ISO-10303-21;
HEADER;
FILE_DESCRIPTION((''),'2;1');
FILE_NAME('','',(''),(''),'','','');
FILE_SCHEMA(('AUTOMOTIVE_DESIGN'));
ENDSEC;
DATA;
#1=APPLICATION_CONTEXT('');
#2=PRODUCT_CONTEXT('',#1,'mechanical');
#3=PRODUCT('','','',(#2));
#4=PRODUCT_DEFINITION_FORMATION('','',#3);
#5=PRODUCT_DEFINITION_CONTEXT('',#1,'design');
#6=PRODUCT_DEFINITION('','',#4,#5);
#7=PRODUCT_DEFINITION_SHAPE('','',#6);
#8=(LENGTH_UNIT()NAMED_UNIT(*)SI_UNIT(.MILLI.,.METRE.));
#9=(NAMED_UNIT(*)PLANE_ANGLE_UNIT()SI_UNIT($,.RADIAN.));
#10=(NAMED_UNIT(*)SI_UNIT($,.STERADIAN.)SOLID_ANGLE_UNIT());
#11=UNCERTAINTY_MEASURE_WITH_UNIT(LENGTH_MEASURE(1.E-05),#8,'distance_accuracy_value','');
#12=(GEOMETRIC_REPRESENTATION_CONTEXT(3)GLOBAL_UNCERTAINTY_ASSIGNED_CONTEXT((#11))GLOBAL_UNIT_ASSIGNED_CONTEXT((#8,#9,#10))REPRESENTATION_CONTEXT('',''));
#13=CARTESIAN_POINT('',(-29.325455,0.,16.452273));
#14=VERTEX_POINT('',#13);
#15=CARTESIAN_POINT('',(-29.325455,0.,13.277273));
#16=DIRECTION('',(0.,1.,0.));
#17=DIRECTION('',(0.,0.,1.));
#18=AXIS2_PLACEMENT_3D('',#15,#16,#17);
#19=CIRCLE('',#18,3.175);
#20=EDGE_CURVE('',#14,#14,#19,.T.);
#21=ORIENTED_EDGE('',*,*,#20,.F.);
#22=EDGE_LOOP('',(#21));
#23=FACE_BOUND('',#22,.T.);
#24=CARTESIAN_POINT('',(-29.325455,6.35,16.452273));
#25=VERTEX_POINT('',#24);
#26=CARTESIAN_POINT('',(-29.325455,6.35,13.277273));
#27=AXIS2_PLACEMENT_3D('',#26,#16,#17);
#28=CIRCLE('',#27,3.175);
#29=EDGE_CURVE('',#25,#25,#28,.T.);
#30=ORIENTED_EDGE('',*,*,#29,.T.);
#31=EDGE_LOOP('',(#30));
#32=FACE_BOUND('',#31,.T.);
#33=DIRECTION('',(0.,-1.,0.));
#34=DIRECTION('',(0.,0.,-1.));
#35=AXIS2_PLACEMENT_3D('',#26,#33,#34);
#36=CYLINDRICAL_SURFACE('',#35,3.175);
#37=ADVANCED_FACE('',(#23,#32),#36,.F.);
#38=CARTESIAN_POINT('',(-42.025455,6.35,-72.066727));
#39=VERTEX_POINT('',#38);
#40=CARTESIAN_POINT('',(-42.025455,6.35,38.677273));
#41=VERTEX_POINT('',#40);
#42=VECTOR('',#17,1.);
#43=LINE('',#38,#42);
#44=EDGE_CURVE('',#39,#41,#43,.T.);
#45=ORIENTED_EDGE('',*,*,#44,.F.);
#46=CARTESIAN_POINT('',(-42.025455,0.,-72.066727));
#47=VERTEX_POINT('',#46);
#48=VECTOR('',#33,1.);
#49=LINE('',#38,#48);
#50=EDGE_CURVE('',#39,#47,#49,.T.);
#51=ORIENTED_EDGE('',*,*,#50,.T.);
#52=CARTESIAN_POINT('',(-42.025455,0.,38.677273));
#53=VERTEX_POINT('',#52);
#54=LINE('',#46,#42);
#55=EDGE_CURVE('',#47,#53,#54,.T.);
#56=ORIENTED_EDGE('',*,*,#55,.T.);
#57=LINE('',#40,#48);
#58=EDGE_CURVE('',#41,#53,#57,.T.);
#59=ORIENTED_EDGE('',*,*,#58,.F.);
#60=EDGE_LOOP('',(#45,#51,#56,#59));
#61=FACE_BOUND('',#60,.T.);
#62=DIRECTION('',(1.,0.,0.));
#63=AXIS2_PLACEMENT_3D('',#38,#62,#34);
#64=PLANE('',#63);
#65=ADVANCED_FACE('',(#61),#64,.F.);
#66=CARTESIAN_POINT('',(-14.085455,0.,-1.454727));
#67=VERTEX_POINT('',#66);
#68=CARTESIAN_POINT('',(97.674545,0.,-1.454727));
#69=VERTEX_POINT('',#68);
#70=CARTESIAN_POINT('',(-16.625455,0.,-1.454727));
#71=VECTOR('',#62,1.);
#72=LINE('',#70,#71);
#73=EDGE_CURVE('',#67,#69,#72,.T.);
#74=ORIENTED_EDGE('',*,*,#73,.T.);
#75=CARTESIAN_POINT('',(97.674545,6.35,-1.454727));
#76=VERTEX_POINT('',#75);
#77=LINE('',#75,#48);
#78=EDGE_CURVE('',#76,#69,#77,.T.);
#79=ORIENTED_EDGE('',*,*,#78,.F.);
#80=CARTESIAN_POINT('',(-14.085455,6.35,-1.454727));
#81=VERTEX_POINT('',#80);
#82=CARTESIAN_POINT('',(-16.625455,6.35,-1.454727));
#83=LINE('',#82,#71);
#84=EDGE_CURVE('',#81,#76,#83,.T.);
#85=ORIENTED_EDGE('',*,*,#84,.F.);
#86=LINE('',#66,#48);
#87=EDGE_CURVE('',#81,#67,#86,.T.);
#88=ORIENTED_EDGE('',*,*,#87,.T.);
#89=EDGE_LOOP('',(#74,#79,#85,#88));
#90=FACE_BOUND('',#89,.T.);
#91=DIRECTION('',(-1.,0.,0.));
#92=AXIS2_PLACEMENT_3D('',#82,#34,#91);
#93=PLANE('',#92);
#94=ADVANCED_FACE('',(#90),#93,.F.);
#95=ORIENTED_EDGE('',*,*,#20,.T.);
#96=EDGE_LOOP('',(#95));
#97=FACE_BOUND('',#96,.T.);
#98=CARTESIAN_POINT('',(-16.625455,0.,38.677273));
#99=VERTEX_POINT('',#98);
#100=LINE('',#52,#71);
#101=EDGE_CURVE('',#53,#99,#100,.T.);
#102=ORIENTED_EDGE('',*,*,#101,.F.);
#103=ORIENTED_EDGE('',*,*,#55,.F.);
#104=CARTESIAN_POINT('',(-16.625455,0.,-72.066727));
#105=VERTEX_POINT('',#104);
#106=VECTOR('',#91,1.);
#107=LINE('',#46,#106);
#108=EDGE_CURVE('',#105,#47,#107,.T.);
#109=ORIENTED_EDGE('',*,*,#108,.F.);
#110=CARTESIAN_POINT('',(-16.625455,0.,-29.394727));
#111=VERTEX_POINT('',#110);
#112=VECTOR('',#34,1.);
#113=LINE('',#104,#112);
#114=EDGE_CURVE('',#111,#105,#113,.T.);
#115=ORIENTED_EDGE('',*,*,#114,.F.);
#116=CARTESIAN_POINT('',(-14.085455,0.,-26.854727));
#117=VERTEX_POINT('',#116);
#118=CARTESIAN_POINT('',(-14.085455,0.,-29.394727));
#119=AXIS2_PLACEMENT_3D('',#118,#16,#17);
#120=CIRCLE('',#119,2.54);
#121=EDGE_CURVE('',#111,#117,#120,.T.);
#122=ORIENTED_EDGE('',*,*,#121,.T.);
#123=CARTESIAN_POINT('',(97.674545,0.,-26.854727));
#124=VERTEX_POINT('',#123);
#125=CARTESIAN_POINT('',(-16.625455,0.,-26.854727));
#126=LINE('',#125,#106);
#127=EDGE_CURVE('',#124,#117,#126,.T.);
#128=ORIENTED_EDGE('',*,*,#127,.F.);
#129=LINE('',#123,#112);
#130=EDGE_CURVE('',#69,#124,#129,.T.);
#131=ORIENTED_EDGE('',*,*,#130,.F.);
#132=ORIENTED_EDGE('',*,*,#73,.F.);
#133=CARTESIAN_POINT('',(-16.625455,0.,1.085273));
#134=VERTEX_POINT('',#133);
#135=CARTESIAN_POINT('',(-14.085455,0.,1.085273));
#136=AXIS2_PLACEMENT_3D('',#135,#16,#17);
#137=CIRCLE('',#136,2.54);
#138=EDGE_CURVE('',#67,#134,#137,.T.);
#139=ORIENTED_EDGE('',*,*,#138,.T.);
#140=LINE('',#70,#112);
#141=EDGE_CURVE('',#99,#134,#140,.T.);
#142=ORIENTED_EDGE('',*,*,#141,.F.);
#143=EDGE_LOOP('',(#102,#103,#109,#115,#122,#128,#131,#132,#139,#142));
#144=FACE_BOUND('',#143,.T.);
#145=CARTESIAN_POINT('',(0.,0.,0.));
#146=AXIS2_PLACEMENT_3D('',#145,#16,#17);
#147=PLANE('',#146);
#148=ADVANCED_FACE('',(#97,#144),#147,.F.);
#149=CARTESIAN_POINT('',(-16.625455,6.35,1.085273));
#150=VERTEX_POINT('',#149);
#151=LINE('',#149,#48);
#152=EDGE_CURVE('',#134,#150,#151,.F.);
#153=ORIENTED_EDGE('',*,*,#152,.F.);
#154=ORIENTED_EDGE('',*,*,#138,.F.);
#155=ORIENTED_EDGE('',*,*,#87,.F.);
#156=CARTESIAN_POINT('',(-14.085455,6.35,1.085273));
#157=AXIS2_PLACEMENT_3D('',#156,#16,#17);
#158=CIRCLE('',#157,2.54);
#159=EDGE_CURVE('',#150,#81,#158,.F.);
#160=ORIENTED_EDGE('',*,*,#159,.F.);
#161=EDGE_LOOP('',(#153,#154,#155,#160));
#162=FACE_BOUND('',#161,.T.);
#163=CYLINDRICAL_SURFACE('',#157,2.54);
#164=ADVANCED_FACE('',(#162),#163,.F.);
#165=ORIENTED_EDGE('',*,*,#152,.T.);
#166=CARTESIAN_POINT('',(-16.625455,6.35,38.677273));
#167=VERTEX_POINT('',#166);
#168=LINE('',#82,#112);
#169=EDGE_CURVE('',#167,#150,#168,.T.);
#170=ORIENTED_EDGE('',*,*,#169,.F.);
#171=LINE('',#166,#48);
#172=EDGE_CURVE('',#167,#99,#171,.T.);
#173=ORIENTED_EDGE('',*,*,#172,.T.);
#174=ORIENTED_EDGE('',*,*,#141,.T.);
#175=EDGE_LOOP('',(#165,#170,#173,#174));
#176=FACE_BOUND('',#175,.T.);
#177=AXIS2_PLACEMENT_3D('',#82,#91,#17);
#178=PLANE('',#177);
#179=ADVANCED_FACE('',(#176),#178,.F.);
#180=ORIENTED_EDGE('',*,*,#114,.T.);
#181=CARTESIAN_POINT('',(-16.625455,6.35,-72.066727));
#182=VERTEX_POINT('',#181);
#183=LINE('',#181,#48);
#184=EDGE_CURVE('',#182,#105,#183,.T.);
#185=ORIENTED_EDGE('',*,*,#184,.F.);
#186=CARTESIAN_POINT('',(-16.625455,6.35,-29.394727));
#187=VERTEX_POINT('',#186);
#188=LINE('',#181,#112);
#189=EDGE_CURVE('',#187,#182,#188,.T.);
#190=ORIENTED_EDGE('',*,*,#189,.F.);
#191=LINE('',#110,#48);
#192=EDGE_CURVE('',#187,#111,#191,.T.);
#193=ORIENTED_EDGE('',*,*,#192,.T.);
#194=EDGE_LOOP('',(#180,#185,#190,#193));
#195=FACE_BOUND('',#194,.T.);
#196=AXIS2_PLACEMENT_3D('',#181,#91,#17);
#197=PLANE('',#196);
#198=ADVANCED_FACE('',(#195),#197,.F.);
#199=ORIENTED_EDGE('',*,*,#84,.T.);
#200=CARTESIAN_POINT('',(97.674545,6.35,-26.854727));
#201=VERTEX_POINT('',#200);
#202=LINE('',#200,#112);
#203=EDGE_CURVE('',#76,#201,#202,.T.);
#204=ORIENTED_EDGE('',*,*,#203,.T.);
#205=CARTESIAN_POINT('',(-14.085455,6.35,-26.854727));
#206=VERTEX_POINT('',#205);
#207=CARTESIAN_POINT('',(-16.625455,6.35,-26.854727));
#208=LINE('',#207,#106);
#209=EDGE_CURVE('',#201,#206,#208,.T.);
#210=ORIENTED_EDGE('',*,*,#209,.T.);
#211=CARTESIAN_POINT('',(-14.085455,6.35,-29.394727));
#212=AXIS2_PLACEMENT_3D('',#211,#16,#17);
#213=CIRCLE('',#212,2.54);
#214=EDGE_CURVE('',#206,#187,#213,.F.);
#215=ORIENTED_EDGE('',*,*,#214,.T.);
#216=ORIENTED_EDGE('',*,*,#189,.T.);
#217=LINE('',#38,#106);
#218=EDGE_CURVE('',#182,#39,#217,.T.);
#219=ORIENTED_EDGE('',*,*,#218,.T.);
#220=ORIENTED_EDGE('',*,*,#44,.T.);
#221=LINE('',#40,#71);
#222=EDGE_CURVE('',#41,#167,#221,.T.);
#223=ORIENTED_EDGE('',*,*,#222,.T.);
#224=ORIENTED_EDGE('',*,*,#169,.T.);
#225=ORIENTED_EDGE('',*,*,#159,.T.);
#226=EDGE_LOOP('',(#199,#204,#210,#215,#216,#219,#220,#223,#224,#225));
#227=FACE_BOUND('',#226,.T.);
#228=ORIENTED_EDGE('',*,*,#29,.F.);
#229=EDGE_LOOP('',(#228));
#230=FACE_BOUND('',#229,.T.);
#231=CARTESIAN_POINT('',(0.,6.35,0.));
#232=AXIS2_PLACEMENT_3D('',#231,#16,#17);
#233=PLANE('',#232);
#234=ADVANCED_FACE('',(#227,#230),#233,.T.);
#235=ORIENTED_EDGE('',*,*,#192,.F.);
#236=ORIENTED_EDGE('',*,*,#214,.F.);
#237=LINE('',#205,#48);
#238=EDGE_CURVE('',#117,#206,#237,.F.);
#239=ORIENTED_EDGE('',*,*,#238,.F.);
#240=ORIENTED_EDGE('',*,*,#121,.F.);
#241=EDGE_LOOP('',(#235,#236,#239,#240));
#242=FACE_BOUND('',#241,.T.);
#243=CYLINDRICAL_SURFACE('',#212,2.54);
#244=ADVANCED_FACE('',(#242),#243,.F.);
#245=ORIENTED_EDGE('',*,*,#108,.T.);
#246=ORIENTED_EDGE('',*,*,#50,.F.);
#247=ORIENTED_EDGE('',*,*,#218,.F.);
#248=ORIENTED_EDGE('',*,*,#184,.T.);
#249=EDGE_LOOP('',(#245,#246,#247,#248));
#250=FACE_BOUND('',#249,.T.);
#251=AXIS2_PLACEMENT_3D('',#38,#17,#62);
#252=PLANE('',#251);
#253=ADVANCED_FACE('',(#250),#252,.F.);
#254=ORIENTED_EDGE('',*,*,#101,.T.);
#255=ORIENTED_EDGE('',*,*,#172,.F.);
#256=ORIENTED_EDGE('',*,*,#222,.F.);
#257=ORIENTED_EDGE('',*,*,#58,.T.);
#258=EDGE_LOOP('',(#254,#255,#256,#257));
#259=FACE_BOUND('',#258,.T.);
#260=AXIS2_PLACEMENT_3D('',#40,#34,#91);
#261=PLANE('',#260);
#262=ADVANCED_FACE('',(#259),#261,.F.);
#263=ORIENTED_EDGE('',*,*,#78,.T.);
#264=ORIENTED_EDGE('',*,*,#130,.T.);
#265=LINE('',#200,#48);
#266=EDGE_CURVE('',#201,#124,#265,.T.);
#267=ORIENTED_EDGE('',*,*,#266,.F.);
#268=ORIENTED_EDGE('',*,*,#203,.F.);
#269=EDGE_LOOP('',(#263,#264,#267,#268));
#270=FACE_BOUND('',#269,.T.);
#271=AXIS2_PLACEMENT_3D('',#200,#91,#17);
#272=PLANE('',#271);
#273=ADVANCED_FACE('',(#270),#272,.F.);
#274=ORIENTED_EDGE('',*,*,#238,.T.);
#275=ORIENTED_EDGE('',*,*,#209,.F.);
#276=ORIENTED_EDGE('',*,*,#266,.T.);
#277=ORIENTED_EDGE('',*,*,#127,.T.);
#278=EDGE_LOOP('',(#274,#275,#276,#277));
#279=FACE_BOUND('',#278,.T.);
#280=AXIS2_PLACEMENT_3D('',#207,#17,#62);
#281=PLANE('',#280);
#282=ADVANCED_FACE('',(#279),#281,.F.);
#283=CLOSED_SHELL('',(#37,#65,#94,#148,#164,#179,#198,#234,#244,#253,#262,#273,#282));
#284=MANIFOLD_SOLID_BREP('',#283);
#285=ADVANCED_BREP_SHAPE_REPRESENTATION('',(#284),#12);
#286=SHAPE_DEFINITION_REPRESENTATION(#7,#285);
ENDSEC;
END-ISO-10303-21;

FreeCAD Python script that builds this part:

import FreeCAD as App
import Part
import Sketcher

V = App.Vector
Q = App.Units.Quantity


def edges_at(feature, points):
    """Names of the edges that pass closest to the given points."""
    edges = feature.Shape.Edges
    near = lambda p: min(range(len(edges)), key=lambda i: edges[i].distToShape(Part.Vertex(*p))[0])
    return sorted({f"Edge{near(p) + 1}" for p in points})


def add_polygon(sketch, points):
    """Adds a closed chain of lines whose ends are joined by coincident constraints."""
    first, n = sketch.GeometryCount, len(points)
    for a, b in zip(points, points[1:] + points[:1]):
        sketch.addGeometry(Part.LineSegment(App.Vector(*a, 0), App.Vector(*b, 0)), False)
    for i in range(n):
        sketch.addConstraint(Sketcher.Constraint("Coincident", first + i, 2, first + (i + 1) % n, 1))

doc = App.newDocument("Part")
params = doc.addObject("Spreadsheet::Sheet", "Params")
for row, (alias, value) in enumerate([
    ("sketch1_diameter", "0.25 in"),
    ("sketch1_width", "1 in"),
    ("sketch1_width2", "4.5 in"),
    ("sketch1_height", "1.58 in"),
    ("sketch1_height2", "1.78 in"),
    ("pad1_length", "0.25 in"),
    ("fillet_radius", "0.1 in"),
], start=1):
    params.set(f"A{row}", alias)
    params.set(f"B{row}", "=" + value)
    params.setAlias(f"B{row}", alias)

body = doc.addObject("PartDesign::Body", "Body")

# Sketch on XZ plane
sketch1 = body.newObject("Sketcher::SketchObject", "Sketch")
sketch1.AttachmentSupport = (doc.getObject("XZ_Plane"), [""])
sketch1.MapMode = "FlatFace"
add_polygon(sketch1, [(-16.625455, 38.677273), (-16.625455, -1.454727), (97.674545, -1.454727), (97.674545, -26.854727), (-16.625455, -26.854727), (-16.625455, -72.066727), (-42.025455, -72.066727), (-42.025455, 38.677273)])  # lines 0-7
sketch1.addGeometry(Part.Circle(V(-29.325455, 13.277273, 0), V(0, 0, 1), 3.175), False)  # 8
sketch1.addConstraint([
    Sketcher.Constraint("Vertical", 0),
    Sketcher.Constraint("Horizontal", 1),
    Sketcher.Constraint("Vertical", 2),
    Sketcher.Constraint("Horizontal", 3),
    Sketcher.Constraint("Vertical", 4),
    Sketcher.Constraint("Horizontal", 5),
    Sketcher.Constraint("Vertical", 6),
    Sketcher.Constraint("Horizontal", 7),
    Sketcher.Constraint("Vertical", 0, 2, 3, 2),
    Sketcher.Constraint("Equal", 7, 2),
    Sketcher.Constraint("Diameter", 8, Q("0.25 in")),
    Sketcher.Constraint("DistanceX", 5, 2, 5, 1, Q("1 in")),
    Sketcher.Constraint("DistanceX", 1, 1, 1, 2, Q("4.5 in")),
    Sketcher.Constraint("DistanceX", 8, 3, 1, 2, Q("5 in")),
    Sketcher.Constraint("DistanceY", 8, 3, 6, 2, Q("1 in")),
    Sketcher.Constraint("DistanceY", 0, 2, 0, 1, Q("1.58 in")),
    Sketcher.Constraint("DistanceY", 4, 2, 4, 1, Q("1.78 in")),
    Sketcher.Constraint("DistanceX", 8, 3, -1, 1, Q("29.325455 mm")),
    Sketcher.Constraint("DistanceY", -1, 1, 8, 3, Q("13.277273 mm")),
])
sketch1.setExpression("Constraints[18]", "Params.sketch1_diameter")
sketch1.setExpression("Constraints[19]", "Params.sketch1_width")
sketch1.setExpression("Constraints[20]", "Params.sketch1_width2")
sketch1.setExpression("Constraints[23]", "Params.sketch1_height")
sketch1.setExpression("Constraints[24]", "Params.sketch1_height2")
pad1 = body.newObject("PartDesign::Pad", "Pad")
pad1.Profile = sketch1
pad1.setExpression("Length", "Params.pad1_length")
pad1.Reversed = True
doc.recompute()

fillet = body.newObject("PartDesign::Fillet", "Fillet")
fillet.Base = (pad1, edges_at(pad1, [(-16.625, 3.175, -26.855), (-16.625, 3.175, -1.455)]))
fillet.setExpression("Radius", "Params.fillet_radius")

doc.recompute()
